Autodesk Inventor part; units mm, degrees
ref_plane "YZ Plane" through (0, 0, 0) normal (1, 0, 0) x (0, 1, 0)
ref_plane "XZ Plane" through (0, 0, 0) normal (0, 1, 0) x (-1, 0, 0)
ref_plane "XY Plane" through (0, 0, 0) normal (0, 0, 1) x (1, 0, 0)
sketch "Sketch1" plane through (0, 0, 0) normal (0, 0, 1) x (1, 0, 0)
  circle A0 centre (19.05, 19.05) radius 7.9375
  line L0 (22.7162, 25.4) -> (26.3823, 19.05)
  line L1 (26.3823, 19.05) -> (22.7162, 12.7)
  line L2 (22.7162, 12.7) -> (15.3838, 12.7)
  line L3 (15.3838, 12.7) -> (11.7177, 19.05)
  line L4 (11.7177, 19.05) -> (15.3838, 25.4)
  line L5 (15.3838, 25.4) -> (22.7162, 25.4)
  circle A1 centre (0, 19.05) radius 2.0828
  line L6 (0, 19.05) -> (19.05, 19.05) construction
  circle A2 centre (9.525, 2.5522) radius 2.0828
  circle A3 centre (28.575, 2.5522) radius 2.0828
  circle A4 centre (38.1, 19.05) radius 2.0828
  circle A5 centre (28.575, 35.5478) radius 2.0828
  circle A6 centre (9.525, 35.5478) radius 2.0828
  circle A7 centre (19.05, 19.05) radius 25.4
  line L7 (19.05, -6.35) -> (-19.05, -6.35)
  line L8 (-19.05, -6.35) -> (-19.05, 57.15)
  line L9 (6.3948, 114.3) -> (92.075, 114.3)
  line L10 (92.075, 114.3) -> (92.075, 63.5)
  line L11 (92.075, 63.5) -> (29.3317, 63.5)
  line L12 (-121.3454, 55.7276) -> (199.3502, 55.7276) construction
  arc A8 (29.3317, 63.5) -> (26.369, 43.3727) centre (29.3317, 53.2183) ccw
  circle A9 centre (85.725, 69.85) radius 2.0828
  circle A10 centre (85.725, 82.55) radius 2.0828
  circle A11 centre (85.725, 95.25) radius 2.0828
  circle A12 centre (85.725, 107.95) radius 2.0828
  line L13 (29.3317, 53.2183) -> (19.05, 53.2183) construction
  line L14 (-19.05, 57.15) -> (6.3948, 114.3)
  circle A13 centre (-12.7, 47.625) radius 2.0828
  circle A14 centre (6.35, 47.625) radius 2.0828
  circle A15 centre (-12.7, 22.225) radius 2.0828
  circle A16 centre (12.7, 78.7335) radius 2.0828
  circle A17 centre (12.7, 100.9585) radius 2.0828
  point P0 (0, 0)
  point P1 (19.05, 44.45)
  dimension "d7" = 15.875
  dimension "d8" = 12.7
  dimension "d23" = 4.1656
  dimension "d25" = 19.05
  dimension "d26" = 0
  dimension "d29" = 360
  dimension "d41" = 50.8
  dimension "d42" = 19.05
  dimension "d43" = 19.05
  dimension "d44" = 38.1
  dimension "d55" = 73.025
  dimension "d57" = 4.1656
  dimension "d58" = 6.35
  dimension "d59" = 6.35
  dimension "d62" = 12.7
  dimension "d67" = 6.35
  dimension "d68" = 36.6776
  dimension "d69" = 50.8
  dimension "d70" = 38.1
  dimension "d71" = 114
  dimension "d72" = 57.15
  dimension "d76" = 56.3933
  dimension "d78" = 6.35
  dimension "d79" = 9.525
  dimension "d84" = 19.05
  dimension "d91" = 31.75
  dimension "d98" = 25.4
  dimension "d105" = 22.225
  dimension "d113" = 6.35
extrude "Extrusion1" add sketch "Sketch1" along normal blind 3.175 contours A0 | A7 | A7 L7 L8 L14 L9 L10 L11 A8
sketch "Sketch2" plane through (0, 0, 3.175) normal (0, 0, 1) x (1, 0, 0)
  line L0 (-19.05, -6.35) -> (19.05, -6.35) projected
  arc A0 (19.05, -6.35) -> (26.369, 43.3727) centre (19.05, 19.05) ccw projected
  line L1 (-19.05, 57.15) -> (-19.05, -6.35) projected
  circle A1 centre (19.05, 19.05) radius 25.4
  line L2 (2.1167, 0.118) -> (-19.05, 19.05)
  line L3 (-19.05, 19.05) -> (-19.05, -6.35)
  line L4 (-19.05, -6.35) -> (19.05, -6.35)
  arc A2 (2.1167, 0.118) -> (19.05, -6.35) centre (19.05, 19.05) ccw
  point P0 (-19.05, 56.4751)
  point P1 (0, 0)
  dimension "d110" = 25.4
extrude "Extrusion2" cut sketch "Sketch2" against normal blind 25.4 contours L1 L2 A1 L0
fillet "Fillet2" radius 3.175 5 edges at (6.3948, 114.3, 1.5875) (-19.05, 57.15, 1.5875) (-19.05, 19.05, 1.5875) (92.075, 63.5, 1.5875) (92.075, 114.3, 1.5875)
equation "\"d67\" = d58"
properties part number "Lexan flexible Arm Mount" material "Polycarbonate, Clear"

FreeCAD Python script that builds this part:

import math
import FreeCAD as App
import Part
import Sketcher
from FreeCAD import Vector
Q = App.Units.Quantity


def edges_at(feature, points):
    """Names of the edges that pass closest to the given points."""
    edges = feature.Shape.Edges
    near = lambda p: min(range(len(edges)), key=lambda i: edges[i].distToShape(Part.Vertex(*p))[0])
    return sorted({f"Edge{near(p) + 1}" for p in points})


def add_polygon(sketch, points):
    """Adds a closed chain of lines whose ends are joined by coincident constraints."""
    first, n = sketch.GeometryCount, len(points)
    for a, b in zip(points, points[1:] + points[:1]):
        sketch.addGeometry(Part.LineSegment(App.Vector(*a, 0), App.Vector(*b, 0)), False)
    for i in range(n):
        sketch.addConstraint(Sketcher.Constraint("Coincident", first + i, 2, first + (i + 1) % n, 1))

doc = App.newDocument("Part")
body = doc.addObject("PartDesign::Body", "Body")

# Sketch on XY plane
sketch1 = doc.addObject("Sketcher::SketchObject", "Sketch")
body.addObject(sketch1)
sketch1.AttachmentSupport = (doc.XY_Plane, [""])
sketch1.MapMode = "FlatFace"
sketch1.addGeometry(Part.ArcOfCircle(Part.Circle(Vector(19.1, 19.1, 0), Vector(0, 0, 1), 25.4), math.radians(-90), math.radians(73)), False)  # 0
sketch1.addGeometry(Part.ArcOfCircle(Part.Circle(Vector(29.3, 53.2, 0), Vector(0, 0, 1), 10.3), math.radians(90), math.radians(253)), False)  # 1
sketch1.addGeometry(Part.LineSegment(Vector(29.3, 63.5, 0), Vector(92.1, 63.5, 0)), False)  # 2
sketch1.addGeometry(Part.LineSegment(Vector(92.1, 63.5, 0), Vector(92.1, 114.3, 0)), False)  # 3
sketch1.addGeometry(Part.LineSegment(Vector(92.1, 114.3, 0), Vector(6.4, 114.3, 0)), False)  # 4
sketch1.addGeometry(Part.LineSegment(Vector(6.4, 114.3, 0), Vector(-19.1, 57.1, 0)), False)  # 5
sketch1.addGeometry(Part.LineSegment(Vector(-19.1, 57.1, 0), Vector(-19.1, -6.3, 0)), False)  # 6
sketch1.addGeometry(Part.LineSegment(Vector(-19.1, -6.3, 0), Vector(19.1, -6.3, 0)), False)  # 7
add_polygon(sketch1, [(15.4, 25.4), (22.7, 25.4), (26.4, 19.1), (22.7, 12.7), (15.4, 12.7), (11.7, 19.1)])  # lines 8-13
sketch1.addGeometry(Part.Circle(Vector(0, 19.1, 0), Vector(0, 0, 1), 2.1), False)  # 14
sketch1.addGeometry(Part.Circle(Vector(9.5, 2.6, 0), Vector(0, 0, 1), 2.1), False)  # 15
sketch1.addGeometry(Part.Circle(Vector(28.6, 2.6, 0), Vector(0, 0, 1), 2.1), False)  # 16
sketch1.addGeometry(Part.Circle(Vector(38.1, 19.1, 0), Vector(0, 0, 1), 2.1), False)  # 17
sketch1.addGeometry(Part.Circle(Vector(9.5, 35.5, 0), Vector(0, 0, 1), 2.1), False)  # 18
sketch1.addGeometry(Part.Circle(Vector(28.6, 35.5, 0), Vector(0, 0, 1), 2.1), False)  # 19
sketch1.addGeometry(Part.Circle(Vector(85.7, 108, 0), Vector(0, 0, 1), 2.1), False)  # 20
sketch1.addGeometry(Part.Circle(Vector(-12.7, 22.2, 0), Vector(0, 0, 1), 2.1), False)  # 21
sketch1.addGeometry(Part.Circle(Vector(-12.7, 47.6, 0), Vector(0, 0, 1), 2.1), False)  # 22
sketch1.addGeometry(Part.Circle(Vector(6.3, 47.6, 0), Vector(0, 0, 1), 2.1), False)  # 23
sketch1.addGeometry(Part.Circle(Vector(12.7, 78.7, 0), Vector(0, 0, 1), 2.1), False)  # 24
sketch1.addGeometry(Part.Circle(Vector(12.7, 101, 0), Vector(0, 0, 1), 2.1), False)  # 25
sketch1.addGeometry(Part.Circle(Vector(85.7, 69.8, 0), Vector(0, 0, 1), 2.1), False)  # 26
sketch1.addGeometry(Part.Circle(Vector(85.7, 82.5, 0), Vector(0, 0, 1), 2.1), False)  # 27
sketch1.addGeometry(Part.Circle(Vector(85.7, 95.2, 0), Vector(0, 0, 1), 2.1), False)  # 28
sketch1.addConstraint([
    Sketcher.Constraint("Tangent", 0, 2, 1, 2),
    Sketcher.Constraint("Tangent", 1, 1, 2, 1),
    Sketcher.Constraint("Coincident", 2, 2, 3, 1),
    Sketcher.Constraint("Coincident", 3, 2, 4, 1),
    Sketcher.Constraint("Coincident", 4, 2, 5, 1),
    Sketcher.Constraint("Coincident", 5, 2, 6, 1),
    Sketcher.Constraint("Coincident", 6, 2, 7, 1),
    Sketcher.Constraint("Tangent", 7, 2, 0, 1),
    Sketcher.Constraint("Horizontal", 2),
    Sketcher.Constraint("Vertical", 3),
    Sketcher.Constraint("Horizontal", 4),
    Sketcher.Constraint("Vertical", 6),
    Sketcher.Constraint("Horizontal", 7),
    Sketcher.Constraint("Horizontal", 8),
    Sketcher.Constraint("Horizontal", 11),
    Sketcher.Constraint("Equal", 14, 15),
    Sketcher.Constraint("Equal", 15, 16),
    Sketcher.Constraint("Equal", 16, 17),
    Sketcher.Constraint("Equal", 17, 18),
    Sketcher.Constraint("Equal", 18, 19),
    Sketcher.Constraint("Equal", 19, 20),
    Sketcher.Constraint("Equal", 20, 21),
    Sketcher.Constraint("Equal", 21, 22),
    Sketcher.Constraint("Equal", 22, 23),
    Sketcher.Constraint("Equal", 23, 24),
    Sketcher.Constraint("Equal", 24, 25),
    Sketcher.Constraint("Equal", 25, 26),
    Sketcher.Constraint("Equal", 26, 27),
    Sketcher.Constraint("Equal", 27, 28),
    Sketcher.Constraint("PointOnObject", 14, 3, -2),
    Sketcher.Constraint("Parallel", 9, 12),
    Sketcher.Constraint("Parallel", 10, 13),
    Sketcher.Constraint("Horizontal", 0, 3, 14, 3),
    Sketcher.Constraint("Horizontal", 15, 3, 16, 3),
    Sketcher.Constraint("Horizontal", 14, 3, 17, 3),
    Sketcher.Constraint("Horizontal", 18, 3, 19, 3),
    Sketcher.Constraint("Horizontal", 22, 3, 23, 3),
    Sketcher.Constraint("Horizontal", 17, 3, 9, 2),
    Sketcher.Constraint("Horizontal", 9, 2, 12, 2),
    Sketcher.Constraint("Vertical", 15, 3, 18, 3),
    Sketcher.Constraint("Vertical", 16, 3, 19, 3),
    Sketcher.Constraint("Vertical", 21, 3, 22, 3),
    Sketcher.Constraint("Vertical", 24, 3, 25, 3),
    Sketcher.Constraint("Vertical", 20, 3, 26, 3),
    Sketcher.Constraint("Vertical", 26, 3, 27, 3),
    Sketcher.Constraint("Vertical", 27, 3, 28, 3),
    Sketcher.Constraint("Vertical", 8, 2, 10, 2),
    Sketcher.Constraint("Vertical", 11, 2, 13, 2),
    Sketcher.Constraint("Radius", 0, Q("1 in")),
    Sketcher.Constraint("DistanceY", 3, 1, 3, 2, Q("2 in")),
    Sketcher.Constraint("Diameter", 14, Q("0.164 in")),
    Sketcher.Constraint("DistanceX", 7, 1, 7, 2, Q("1.5 in")),
    Sketcher.Constraint("DistanceY", -1, 1, 8, 2, Q("1 in")),
    Sketcher.Constraint("Angle", 5, Q("-114 deg")),
    Sketcher.Constraint("DistanceY", 21, 3, 22, 3, Q("1 in")),
    Sketcher.Constraint("DistanceX", 22, 3, 24, 3, Q("1 in")),
    Sketcher.Constraint("DistanceY", 17, 3, 26, 3, Q("2 in")),
    Sketcher.Constraint("DistanceY", 27, 3, 20, 3, Q("1 in")),
    Sketcher.Constraint("DistanceY", 26, 3, 28, 3, Q("1 in")),
    Sketcher.Constraint("DistanceX", 5, 2, 23, 3, Q("1 in")),
    Sketcher.Constraint("DistanceX", -1, 1, 17, 3, Q("1.5 in")),
    Sketcher.Constraint("DistanceX", 21, 3, -1, 1, Q("0.5 in")),
    Sketcher.Constraint("DistanceY", -1, 1, 10, 2, Q("0.5 in")),
    Sketcher.Constraint("DistanceY", 26, 3, 20, 3, Q("1.5 in")),
    Sketcher.Constraint("DistanceX", -1, 1, 0, 3, Q("0.75 in")),
    Sketcher.Constraint("DistanceY", -1, 1, 5, 2, Q("2.25 in")),
    Sketcher.Constraint("DistanceX", 15, 3, 16, 3, Q("0.75 in")),
    Sketcher.Constraint("DistanceX", 19, 3, 20, 3, Q("2.25 in")),
    Sketcher.Constraint("DistanceX", 26, 3, 2, 2, Q("0.25 in")),
    Sketcher.Constraint("DistanceY", 2, 2, 26, 3, Q("0.25 in")),
    Sketcher.Constraint("DistanceX", -1, 1, 15, 3, Q("0.375 in")),
    Sketcher.Constraint("DistanceY", -1, 1, 21, 3, Q("0.875 in")),
    Sketcher.Constraint("Angle", 9, Q("-60.0005 deg")),
    Sketcher.Constraint("DistanceY", 24, 3, 25, 3, Q("0.875 in")),
    Sketcher.Constraint("Radius", 1, Q("0.4048 in")),
    Sketcher.Constraint("DistanceX", 11, 2, 9, 2, Q("0.433 in")),
    Sketcher.Constraint("DistanceY", 18, 3, 1, 3, Q("0.6957 in")),
    Sketcher.Constraint("DistanceX", 8, 2, 0, 2, Q("0.1438 in")),
    Sketcher.Constraint("DistanceY", -1, 1, 15, 3, Q("2.5522 mm")),
    Sketcher.Constraint("DistanceY", -1, 1, 24, 3, Q("78.7335 mm")),
])
pad1 = doc.addObject("PartDesign::Pad", "Pad")
body.addObject(pad1)
pad1.Profile = sketch1
pad1.Length = Q("0.125 in")

# Sketch on XY plane
sketch2 = doc.addObject("Sketcher::SketchObject", "Sketch001")
body.addObject(sketch2)
sketch2.AttachmentSupport = (doc.XY_Plane, [""])
sketch2.MapMode = "FlatFace"
sketch2.AttachmentOffset = App.Placement(Vector(0, 0, 0.125 * 25.4), App.Rotation())
sketch2.addGeometry([
    Part.LineSegment(Vector(-19, 19, 0), Vector(-19, -6, 0)),
    Part.LineSegment(Vector(-19, -6, 0), Vector(19, -6, 0)),
    Part.ArcOfCircle(Part.Circle(Vector(19, 19, 0), Vector(0, 0, 1), 25), math.radians(-132), math.radians(-90)),
    Part.LineSegment(Vector(2, 0, 0), Vector(-19, 19, 0)),
], False)
sketch2.addConstraint([
    Sketcher.Constraint("Coincident", 0, 2, 1, 1),
    Sketcher.Constraint("Tangent", 1, 2, 2, 2),
    Sketcher.Constraint("Tangent", 2, 1, 3, 1),
    Sketcher.Constraint("Coincident", 3, 2, 0, 1),
    Sketcher.Constraint("Vertical", 0),
    Sketcher.Constraint("Horizontal", 1),
    Sketcher.Constraint("Horizontal", 2, 3, 3, 2),
    Sketcher.Constraint("Radius", 2, Q("1 in")),
    Sketcher.Constraint("DistanceX", 1, 1, 1, 2, Q("1.5 in")),
    Sketcher.Constraint("DistanceX", -1, 1, 2, 3, Q("0.75 in")),
    Sketcher.Constraint("DistanceY", -1, 1, 2, 3, Q("0.75 in")),
])
pocket1 = doc.addObject("PartDesign::Pocket", "Pocket")
body.addObject(pocket1)
pocket1.Profile = sketch2
pocket1.Length = Q("1 in")
doc.recompute()

fillet = doc.addObject("PartDesign::Fillet", "Fillet")
body.addObject(fillet)
fillet.Base = (pocket1, edges_at(pocket1, [
    (6.395, 114.3, 1.587),
    (-19.05, 57.15, 1.587),
    (-19.05, 19.05, 1.587),
    (92.075, 63.5, 1.587),
    (92.075, 114.3, 1.587),
]))
fillet.Radius = Q("0.125 in")

doc.recompute()
